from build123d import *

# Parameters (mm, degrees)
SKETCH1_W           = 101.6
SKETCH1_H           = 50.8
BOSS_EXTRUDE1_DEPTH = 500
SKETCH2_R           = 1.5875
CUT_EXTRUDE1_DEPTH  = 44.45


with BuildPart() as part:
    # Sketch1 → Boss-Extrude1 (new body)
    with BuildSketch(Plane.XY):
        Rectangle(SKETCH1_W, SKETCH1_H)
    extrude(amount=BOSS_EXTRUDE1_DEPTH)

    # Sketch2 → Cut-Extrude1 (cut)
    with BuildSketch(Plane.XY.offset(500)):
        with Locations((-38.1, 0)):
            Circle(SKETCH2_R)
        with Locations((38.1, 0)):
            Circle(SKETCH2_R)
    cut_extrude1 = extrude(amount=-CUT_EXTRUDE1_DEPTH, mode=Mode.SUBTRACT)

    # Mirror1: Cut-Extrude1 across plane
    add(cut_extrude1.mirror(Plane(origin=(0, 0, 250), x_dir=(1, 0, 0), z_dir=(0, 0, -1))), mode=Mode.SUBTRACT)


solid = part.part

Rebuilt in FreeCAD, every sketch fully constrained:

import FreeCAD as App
import Part
import Sketcher
from FreeCAD import Vector
Q = App.Units.Quantity

doc = App.newDocument("Part")
body = doc.addObject("PartDesign::Body", "Body")

# Sketch on XY plane
sketch1 = body.newObject("Sketcher::SketchObject", "Sketch")
sketch1.AttachmentSupport = (doc.getObject("XY_Plane"), [""])
sketch1.MapMode = "FlatFace"
sketch1.addGeometry([
    Part.LineSegment(Vector(-50.8, 25.4, 0), Vector(-50.8, -25.4, 0)),
    Part.LineSegment(Vector(-50.8, -25.4, 0), Vector(50.8, -25.4, 0)),
    Part.LineSegment(Vector(50.8, -25.4, 0), Vector(50.8, 25.4, 0)),
    Part.LineSegment(Vector(50.8, 25.4, 0), Vector(-50.8, 25.4, 0)),
], False)
sketch1.addConstraint([
    Sketcher.Constraint("Coincident", 0, 2, 1, 1),
    Sketcher.Constraint("Coincident", 1, 2, 2, 1),
    Sketcher.Constraint("Coincident", 2, 2, 3, 1),
    Sketcher.Constraint("Coincident", 3, 2, 0, 1),
    Sketcher.Constraint("Vertical", 0),
    Sketcher.Constraint("Horizontal", 1),
    Sketcher.Constraint("Vertical", 2),
    Sketcher.Constraint("Horizontal", 3),
    Sketcher.Constraint("Symmetric", 0, 2, 2, 2, -1, 1),
    Sketcher.Constraint("DistanceX", 1, 1, 1, 2, Q("4 in")),
    Sketcher.Constraint("DistanceY", 0, 2, 0, 1, Q("2 in")),
])
pad1 = body.newObject("PartDesign::Pad", "Pad")
pad1.Profile = sketch1
pad1.Length = 500

# Sketch on XY plane
sketch2 = body.newObject("Sketcher::SketchObject", "Sketch001")
sketch2.AttachmentSupport = (doc.getObject("XY_Plane"), [""])
sketch2.MapMode = "FlatFace"
sketch2.AttachmentOffset = App.Placement(Vector(0, 0, 500), App.Rotation())
sketch2.addGeometry([
    Part.Circle(Vector(-38.1, 0, 0), Vector(0, 0, 1), 1.5875),
    Part.Circle(Vector(38.1, 0, 0), Vector(0, 0, 1), 1.5875),
], False)
sketch2.addConstraint([
    Sketcher.Constraint("Equal", 0, 1),
    Sketcher.Constraint("Symmetric", 0, 3, 1, 3, -1, 1),
    Sketcher.Constraint("PointOnObject", 0, 3, -1),
    Sketcher.Constraint("Diameter", 0, Q("0.125 in")),
    Sketcher.Constraint("DistanceX", 0, 3, 1, 3, Q("3 in")),
])
pocket1 = body.newObject("PartDesign::Pocket", "Pocket")
pocket1.Profile = sketch2
pocket1.Length = Q("1.75 in")
doc.recompute()

datumplane = body.newObject("PartDesign::Plane", "DatumPlane")
datumplane.AttachmentSupport = (doc.getObject("XY_Plane"), [""])
datumplane.MapMode = "FlatFace"
datumplane.AttachmentOffset = App.Placement(Vector(0, 0, 250), App.Rotation())
mirrored = body.newObject("PartDesign::Mirrored", "Mirrored")
mirrored.Originals = [pocket1]
mirrored.MirrorPlane = (datumplane, [""])
body.Tip = mirrored

doc.recompute()
